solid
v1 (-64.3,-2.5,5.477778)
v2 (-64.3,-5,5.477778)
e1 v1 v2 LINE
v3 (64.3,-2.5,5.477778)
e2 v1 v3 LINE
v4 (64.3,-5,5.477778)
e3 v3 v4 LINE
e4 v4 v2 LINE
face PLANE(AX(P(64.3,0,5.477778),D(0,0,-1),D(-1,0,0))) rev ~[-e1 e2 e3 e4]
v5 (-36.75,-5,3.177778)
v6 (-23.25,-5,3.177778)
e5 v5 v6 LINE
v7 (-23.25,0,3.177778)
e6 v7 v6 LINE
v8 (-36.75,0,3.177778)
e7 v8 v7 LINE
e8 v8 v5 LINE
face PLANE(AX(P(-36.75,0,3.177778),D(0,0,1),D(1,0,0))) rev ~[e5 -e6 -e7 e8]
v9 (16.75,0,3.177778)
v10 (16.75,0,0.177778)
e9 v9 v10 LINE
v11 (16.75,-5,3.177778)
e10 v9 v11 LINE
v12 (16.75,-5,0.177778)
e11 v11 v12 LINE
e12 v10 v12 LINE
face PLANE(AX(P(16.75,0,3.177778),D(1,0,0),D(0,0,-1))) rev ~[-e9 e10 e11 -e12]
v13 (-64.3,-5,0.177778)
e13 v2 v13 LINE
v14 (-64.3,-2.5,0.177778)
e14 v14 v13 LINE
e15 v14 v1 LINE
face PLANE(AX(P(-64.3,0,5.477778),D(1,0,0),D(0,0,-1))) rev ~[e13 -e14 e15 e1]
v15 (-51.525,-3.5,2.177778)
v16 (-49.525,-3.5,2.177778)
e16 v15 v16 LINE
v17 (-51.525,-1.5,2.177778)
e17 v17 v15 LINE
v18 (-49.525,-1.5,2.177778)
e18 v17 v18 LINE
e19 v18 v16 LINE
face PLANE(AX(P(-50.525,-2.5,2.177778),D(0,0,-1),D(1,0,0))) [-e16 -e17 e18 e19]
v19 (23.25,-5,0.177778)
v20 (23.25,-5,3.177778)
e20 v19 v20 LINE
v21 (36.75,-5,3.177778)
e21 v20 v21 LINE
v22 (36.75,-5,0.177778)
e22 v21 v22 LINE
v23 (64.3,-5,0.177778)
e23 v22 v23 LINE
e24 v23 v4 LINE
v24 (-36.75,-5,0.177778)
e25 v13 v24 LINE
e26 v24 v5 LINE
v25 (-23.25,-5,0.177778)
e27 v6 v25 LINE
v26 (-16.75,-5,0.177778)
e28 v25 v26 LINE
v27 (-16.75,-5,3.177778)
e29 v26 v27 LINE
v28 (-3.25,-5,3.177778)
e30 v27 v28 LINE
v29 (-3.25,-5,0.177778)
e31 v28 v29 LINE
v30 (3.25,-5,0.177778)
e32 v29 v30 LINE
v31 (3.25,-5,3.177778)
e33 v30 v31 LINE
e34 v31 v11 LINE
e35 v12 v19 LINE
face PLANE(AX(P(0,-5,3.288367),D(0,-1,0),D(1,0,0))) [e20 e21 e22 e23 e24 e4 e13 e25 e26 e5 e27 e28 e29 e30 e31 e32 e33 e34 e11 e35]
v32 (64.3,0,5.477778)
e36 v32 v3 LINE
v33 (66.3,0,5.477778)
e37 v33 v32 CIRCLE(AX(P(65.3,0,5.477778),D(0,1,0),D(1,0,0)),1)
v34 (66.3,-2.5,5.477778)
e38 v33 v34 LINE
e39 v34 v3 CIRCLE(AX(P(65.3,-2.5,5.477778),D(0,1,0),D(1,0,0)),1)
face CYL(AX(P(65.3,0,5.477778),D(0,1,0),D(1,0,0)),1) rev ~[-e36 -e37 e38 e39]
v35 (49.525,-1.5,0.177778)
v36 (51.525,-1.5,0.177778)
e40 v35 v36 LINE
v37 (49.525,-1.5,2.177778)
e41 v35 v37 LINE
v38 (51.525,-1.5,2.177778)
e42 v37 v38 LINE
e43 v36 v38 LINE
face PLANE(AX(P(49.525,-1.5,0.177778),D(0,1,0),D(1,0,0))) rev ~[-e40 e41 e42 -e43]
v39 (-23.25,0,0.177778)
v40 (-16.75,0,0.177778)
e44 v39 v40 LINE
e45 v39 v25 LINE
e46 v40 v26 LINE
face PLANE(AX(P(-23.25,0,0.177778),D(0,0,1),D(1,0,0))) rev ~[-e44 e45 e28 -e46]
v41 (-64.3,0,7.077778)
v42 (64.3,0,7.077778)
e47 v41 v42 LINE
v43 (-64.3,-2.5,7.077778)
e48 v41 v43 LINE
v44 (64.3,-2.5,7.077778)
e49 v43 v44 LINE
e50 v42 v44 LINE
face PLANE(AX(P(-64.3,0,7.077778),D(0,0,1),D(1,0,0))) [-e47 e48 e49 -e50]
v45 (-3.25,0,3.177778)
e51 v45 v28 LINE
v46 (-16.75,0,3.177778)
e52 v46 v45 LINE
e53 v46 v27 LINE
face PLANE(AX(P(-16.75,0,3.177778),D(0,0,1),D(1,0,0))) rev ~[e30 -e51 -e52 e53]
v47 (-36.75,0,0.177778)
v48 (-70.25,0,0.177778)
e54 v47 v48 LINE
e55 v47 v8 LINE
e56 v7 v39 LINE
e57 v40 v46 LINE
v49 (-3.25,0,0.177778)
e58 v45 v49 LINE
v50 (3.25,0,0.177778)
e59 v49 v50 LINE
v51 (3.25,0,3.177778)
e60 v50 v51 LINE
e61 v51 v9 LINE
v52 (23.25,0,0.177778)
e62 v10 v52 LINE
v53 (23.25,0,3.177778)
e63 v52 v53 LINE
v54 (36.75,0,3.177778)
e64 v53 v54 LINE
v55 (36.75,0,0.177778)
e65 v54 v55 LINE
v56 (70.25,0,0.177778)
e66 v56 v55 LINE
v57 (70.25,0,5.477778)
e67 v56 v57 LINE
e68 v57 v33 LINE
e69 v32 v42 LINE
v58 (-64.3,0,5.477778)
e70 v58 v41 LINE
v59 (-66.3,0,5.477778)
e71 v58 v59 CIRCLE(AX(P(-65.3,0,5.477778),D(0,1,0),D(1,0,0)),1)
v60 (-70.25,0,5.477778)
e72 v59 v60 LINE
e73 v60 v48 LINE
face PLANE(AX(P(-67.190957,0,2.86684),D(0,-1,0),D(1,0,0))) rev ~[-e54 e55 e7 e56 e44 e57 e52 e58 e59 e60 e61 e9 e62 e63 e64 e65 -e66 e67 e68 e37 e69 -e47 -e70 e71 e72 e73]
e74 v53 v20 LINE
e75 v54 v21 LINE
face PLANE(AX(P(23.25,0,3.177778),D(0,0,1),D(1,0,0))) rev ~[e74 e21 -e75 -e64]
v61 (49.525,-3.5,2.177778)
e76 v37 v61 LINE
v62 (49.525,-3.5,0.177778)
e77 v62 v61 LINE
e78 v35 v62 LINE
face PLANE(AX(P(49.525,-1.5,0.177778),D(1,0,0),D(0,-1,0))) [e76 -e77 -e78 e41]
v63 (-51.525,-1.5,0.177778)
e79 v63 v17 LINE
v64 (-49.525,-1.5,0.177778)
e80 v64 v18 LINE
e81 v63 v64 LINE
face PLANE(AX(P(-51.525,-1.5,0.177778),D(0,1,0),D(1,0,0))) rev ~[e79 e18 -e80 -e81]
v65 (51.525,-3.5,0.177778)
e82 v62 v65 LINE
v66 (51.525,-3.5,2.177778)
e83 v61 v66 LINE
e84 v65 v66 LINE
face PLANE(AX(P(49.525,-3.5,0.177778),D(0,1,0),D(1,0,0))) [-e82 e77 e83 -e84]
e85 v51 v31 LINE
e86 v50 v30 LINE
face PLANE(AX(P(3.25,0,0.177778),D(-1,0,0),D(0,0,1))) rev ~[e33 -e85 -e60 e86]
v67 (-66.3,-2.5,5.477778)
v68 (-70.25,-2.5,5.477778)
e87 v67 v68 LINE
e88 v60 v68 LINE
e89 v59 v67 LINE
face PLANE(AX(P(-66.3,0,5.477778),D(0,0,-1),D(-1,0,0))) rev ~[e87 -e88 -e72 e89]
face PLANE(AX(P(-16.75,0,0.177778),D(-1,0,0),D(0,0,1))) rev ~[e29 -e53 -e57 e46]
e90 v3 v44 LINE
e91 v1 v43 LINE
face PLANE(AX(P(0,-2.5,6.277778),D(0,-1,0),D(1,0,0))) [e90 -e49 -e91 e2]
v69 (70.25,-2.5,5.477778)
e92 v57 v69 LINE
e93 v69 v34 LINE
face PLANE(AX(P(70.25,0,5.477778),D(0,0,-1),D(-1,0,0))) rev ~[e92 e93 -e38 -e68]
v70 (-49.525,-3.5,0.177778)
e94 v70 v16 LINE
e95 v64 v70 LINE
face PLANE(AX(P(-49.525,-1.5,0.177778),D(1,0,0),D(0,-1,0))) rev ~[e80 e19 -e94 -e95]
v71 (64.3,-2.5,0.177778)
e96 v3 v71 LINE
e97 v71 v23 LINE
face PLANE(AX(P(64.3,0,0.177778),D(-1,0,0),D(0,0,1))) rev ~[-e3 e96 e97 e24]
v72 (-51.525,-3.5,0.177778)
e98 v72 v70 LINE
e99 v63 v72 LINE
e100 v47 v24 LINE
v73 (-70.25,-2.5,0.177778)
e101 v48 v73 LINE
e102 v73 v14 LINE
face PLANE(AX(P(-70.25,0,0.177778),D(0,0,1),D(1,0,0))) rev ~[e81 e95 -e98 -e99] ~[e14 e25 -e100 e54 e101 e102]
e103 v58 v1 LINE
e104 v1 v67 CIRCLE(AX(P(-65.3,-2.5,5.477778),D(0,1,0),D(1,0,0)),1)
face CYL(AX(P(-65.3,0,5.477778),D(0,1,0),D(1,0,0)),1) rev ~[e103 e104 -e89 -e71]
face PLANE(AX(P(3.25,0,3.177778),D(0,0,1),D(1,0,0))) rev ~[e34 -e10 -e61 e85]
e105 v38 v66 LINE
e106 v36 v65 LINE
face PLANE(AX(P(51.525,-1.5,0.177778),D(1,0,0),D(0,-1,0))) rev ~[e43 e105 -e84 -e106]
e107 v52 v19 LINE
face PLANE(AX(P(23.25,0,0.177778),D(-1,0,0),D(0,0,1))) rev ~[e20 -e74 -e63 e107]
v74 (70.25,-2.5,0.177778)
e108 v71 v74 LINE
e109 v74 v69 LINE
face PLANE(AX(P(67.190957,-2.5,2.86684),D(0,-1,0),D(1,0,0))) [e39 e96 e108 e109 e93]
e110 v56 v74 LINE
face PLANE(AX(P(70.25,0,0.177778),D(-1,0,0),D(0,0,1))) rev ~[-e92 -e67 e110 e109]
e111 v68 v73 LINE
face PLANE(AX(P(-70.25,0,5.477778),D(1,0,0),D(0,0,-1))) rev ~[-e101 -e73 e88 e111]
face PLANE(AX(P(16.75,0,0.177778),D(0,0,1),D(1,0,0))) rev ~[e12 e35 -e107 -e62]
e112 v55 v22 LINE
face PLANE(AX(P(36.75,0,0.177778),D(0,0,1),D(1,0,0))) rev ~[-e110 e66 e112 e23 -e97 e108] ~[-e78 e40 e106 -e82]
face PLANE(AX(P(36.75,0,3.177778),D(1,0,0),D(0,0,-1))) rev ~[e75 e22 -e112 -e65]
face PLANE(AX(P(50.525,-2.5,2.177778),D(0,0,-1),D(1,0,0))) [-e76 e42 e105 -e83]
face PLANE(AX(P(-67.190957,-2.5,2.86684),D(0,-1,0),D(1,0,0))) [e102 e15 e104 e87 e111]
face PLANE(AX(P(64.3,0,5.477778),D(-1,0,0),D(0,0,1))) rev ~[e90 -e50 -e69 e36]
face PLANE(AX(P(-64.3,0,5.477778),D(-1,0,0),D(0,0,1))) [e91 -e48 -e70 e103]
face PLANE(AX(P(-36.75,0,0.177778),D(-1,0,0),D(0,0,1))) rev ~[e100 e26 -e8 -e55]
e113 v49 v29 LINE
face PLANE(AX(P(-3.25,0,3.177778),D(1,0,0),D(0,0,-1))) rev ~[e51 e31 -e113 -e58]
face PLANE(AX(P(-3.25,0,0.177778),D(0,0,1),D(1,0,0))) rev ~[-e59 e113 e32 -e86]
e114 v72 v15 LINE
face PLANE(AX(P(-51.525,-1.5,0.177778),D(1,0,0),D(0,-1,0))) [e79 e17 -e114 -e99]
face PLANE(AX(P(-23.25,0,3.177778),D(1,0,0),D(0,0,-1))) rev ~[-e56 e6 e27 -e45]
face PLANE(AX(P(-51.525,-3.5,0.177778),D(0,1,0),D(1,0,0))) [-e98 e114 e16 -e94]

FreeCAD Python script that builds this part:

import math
import FreeCAD as App
import Part
import Sketcher

V = App.Vector
Q = App.Units.Quantity

doc = App.newDocument("Part")
body = doc.addObject("PartDesign::Body", "Body")

sketch1 = doc.addObject("Sketcher::SketchObject", "Sketch")
body.addObject(sketch1)
sketch1.AttachmentSupport = (doc.XZ_Plane, [""])
sketch1.MapMode = "FlatFace"
sketch1.addGeometry([
    Part.LineSegment(V(64.3, 0.177778, 0), V(64.3, 5.477778, 0)),
    Part.LineSegment(V(64.3, 5.477778, 0), V(-64.3, 5.477778, 0)),
    Part.LineSegment(V(-64.3, 5.477778, 0), V(-64.3, 0.177778, 0)),
    Part.LineSegment(V(-64.3, 0.177778, 0), V(-36.75, 0.177778, 0)),
    Part.LineSegment(V(-36.75, 0.177778, 0), V(-36.75, 3.177778, 0)),
    Part.LineSegment(V(-36.75, 3.177778, 0), V(-23.25, 3.177778, 0)),
    Part.LineSegment(V(-23.25, 3.177778, 0), V(-23.25, 0.177778, 0)),
    Part.LineSegment(V(-23.25, 0.177778, 0), V(-16.75, 0.177778, 0)),
    Part.LineSegment(V(-16.75, 0.177778, 0), V(-16.75, 3.177778, 0)),
    Part.LineSegment(V(-16.75, 3.177778, 0), V(-3.25, 3.177778, 0)),
    Part.LineSegment(V(-3.25, 3.177778, 0), V(-3.25, 0.177778, 0)),
    Part.LineSegment(V(-3.25, 0.177778, 0), V(3.25, 0.177778, 0)),
    Part.LineSegment(V(3.25, 0.177778, 0), V(3.25, 3.177778, 0)),
    Part.LineSegment(V(3.25, 3.177778, 0), V(16.75, 3.177778, 0)),
    Part.LineSegment(V(16.75, 3.177778, 0), V(16.75, 0.177778, 0)),
    Part.LineSegment(V(16.75, 0.177778, 0), V(23.25, 0.177778, 0)),
    Part.LineSegment(V(23.25, 0.177778, 0), V(23.25, 3.177778, 0)),
    Part.LineSegment(V(23.25, 3.177778, 0), V(36.75, 3.177778, 0)),
    Part.LineSegment(V(36.75, 3.177778, 0), V(36.75, 0.177778, 0)),
    Part.LineSegment(V(36.75, 0.177778, 0), V(64.3, 0.177778, 0)),
], False)
sketch1.addConstraint([
    Sketcher.Constraint("Coincident", 0, 2, 1, 1),
    Sketcher.Constraint("Coincident", 1, 2, 2, 1),
    Sketcher.Constraint("Coincident", 2, 2, 3, 1),
    Sketcher.Constraint("Coincident", 3, 2, 4, 1),
    Sketcher.Constraint("Coincident", 4, 2, 5, 1),
    Sketcher.Constraint("Coincident", 5, 2, 6, 1),
    Sketcher.Constraint("Coincident", 6, 2, 7, 1),
    Sketcher.Constraint("Coincident", 7, 2, 8, 1),
    Sketcher.Constraint("Coincident", 8, 2, 9, 1),
    Sketcher.Constraint("Coincident", 9, 2, 10, 1),
    Sketcher.Constraint("Coincident", 10, 2, 11, 1),
    Sketcher.Constraint("Coincident", 11, 2, 12, 1),
    Sketcher.Constraint("Coincident", 12, 2, 13, 1),
    Sketcher.Constraint("Coincident", 13, 2, 14, 1),
    Sketcher.Constraint("Coincident", 14, 2, 15, 1),
    Sketcher.Constraint("Coincident", 15, 2, 16, 1),
    Sketcher.Constraint("Coincident", 16, 2, 17, 1),
    Sketcher.Constraint("Coincident", 17, 2, 18, 1),
    Sketcher.Constraint("Coincident", 18, 2, 19, 1),
    Sketcher.Constraint("Coincident", 19, 2, 0, 1),
    Sketcher.Constraint("Vertical", 0),
    Sketcher.Constraint("Horizontal", 1),
    Sketcher.Constraint("Vertical", 2),
    Sketcher.Constraint("Horizontal", 3),
    Sketcher.Constraint("Vertical", 4),
    Sketcher.Constraint("Horizontal", 5),
    Sketcher.Constraint("Vertical", 6),
    Sketcher.Constraint("Horizontal", 7),
    Sketcher.Constraint("Vertical", 8),
    Sketcher.Constraint("Horizontal", 9),
    Sketcher.Constraint("Vertical", 10),
    Sketcher.Constraint("Horizontal", 11),
    Sketcher.Constraint("Vertical", 12),
    Sketcher.Constraint("Horizontal", 13),
    Sketcher.Constraint("Vertical", 14),
    Sketcher.Constraint("Horizontal", 15),
    Sketcher.Constraint("Vertical", 16),
    Sketcher.Constraint("Horizontal", 17),
    Sketcher.Constraint("Vertical", 18),
    Sketcher.Constraint("Horizontal", 19),
    Sketcher.Constraint("Symmetric", 9, 2, 12, 2, -2),
    Sketcher.Constraint("Symmetric", 7, 2, 14, 2, -2),
    Sketcher.Constraint("Symmetric", 5, 2, 16, 2, -2),
    Sketcher.Constraint("Symmetric", 3, 2, 18, 2, -2),
    Sketcher.Constraint("Horizontal", 3, 2, 6, 2),
    Sketcher.Constraint("Horizontal", 5, 2, 8, 2),
    Sketcher.Constraint("Horizontal", 7, 2, 10, 2),
    Sketcher.Constraint("Equal", 5, 9),
    Sketcher.Constraint("Equal", 7, 11),
    Sketcher.Constraint("Equal", 3, 19),
    Sketcher.Constraint("DistanceY", 4, 1, 4, 2, Q("3 mm")),
    Sketcher.Constraint("DistanceX", 1, 2, 1, 1, Q("128.6 mm")),
    Sketcher.Constraint("DistanceX", 5, 1, 5, 2, Q("13.5 mm")),
    Sketcher.Constraint("DistanceX", 7, 1, 7, 2, Q("6.5 mm")),
    Sketcher.Constraint("DistanceY", 0, 1, 0, 2, Q("5.3 mm")),
    Sketcher.Constraint("DistanceY", -1, 1, 4, 2, Q("3.177778 mm")),
])
pad1 = doc.addObject("PartDesign::Pad", "Pad")
body.addObject(pad1)
pad1.Profile = sketch1
pad1.Length = 5

sketch2 = doc.addObject("Sketcher::SketchObject", "Sketch001")
body.addObject(sketch2)
sketch2.AttachmentSupport = (doc.XZ_Plane, [""])
sketch2.MapMode = "FlatFace"
sketch2.addGeometry([
    Part.LineSegment(V(-64.3, 0.177778, 0), V(-64.3, 5.477778, 0)),
    Part.ArcOfCircle(Part.Circle(V(-65.3, 5.477778, 0), V(0, 0, 1), 1), math.radians(180), math.radians(360)),
    Part.LineSegment(V(-66.3, 5.477778, 0), V(-70.25, 5.477778, 0)),
    Part.LineSegment(V(-70.25, 5.477778, 0), V(-70.25, 0.177778, 0)),
    Part.LineSegment(V(-70.25, 0.177778, 0), V(-64.3, 0.177778, 0)),
    Part.LineSegment(V(-64.3, 7.077778, 0), V(-64.3, 5.477778, 0)),
    Part.LineSegment(V(-64.3, 5.477778, 0), V(64.3, 5.477778, 0)),
    Part.LineSegment(V(64.3, 5.477778, 0), V(64.3, 7.077778, 0)),
    Part.LineSegment(V(64.3, 7.077778, 0), V(-64.3, 7.077778, 0)),
    Part.ArcOfCircle(Part.Circle(V(65.3, 5.477778, 0), V(0, 0, 1), 1), math.radians(180), math.radians(360)),
    Part.LineSegment(V(64.3, 5.477778, 0), V(64.3, 0.177778, 0)),
    Part.LineSegment(V(64.3, 0.177778, 0), V(70.25, 0.177778, 0)),
    Part.LineSegment(V(70.25, 0.177778, 0), V(70.25, 5.477778, 0)),
    Part.LineSegment(V(70.25, 5.477778, 0), V(66.3, 5.477778, 0)),
], False)
sketch2.addConstraint([
    Sketcher.Constraint("Tangent", 0, 2, 1, 2),
    Sketcher.Constraint("Coincident", 1, 1, 2, 1),
    Sketcher.Constraint("Coincident", 2, 2, 3, 1),
    Sketcher.Constraint("Coincident", 3, 2, 4, 1),
    Sketcher.Constraint("Coincident", 4, 2, 0, 1),
    Sketcher.Constraint("Coincident", 5, 2, 6, 1),
    Sketcher.Constraint("Coincident", 6, 2, 7, 1),
    Sketcher.Constraint("Coincident", 7, 2, 8, 1),
    Sketcher.Constraint("Coincident", 8, 2, 5, 1),
    Sketcher.Constraint("Tangent", 9, 1, 10, 1),
    Sketcher.Constraint("Coincident", 10, 2, 11, 1),
    Sketcher.Constraint("Coincident", 11, 2, 12, 1),
    Sketcher.Constraint("Coincident", 12, 2, 13, 1),
    Sketcher.Constraint("Coincident", 13, 2, 9, 2),
    Sketcher.Constraint("Vertical", 0),
    Sketcher.Constraint("Horizontal", 2),
    Sketcher.Constraint("Vertical", 3),
    Sketcher.Constraint("Horizontal", 4),
    Sketcher.Constraint("Vertical", 5),
    Sketcher.Constraint("Horizontal", 6),
    Sketcher.Constraint("Vertical", 7),
    Sketcher.Constraint("Horizontal", 8),
    Sketcher.Constraint("Vertical", 10),
    Sketcher.Constraint("Horizontal", 11),
    Sketcher.Constraint("Vertical", 12),
    Sketcher.Constraint("Horizontal", 13),
    Sketcher.Constraint("Coincident", 5, 2, 0, 2),
    Sketcher.Constraint("Coincident", 9, 1, 6, 2),
    Sketcher.Constraint("Equal", 1, 9),
    Sketcher.Constraint("Symmetric", 4, 2, 10, 2, -2),
    Sketcher.Constraint("Symmetric", 2, 2, 12, 2, -2),
    Sketcher.Constraint("Horizontal", 0, 2, 1, 1),
    Sketcher.Constraint("Radius", 1, Q("1 mm")),
    Sketcher.Constraint("DistanceX", 6, 1, 6, 2, Q("128.6 mm")),
    Sketcher.Constraint("DistanceY", 0, 1, 0, 2, Q("5.3 mm")),
    Sketcher.Constraint("DistanceY", 5, 2, 5, 1, Q("1.6 mm")),
    Sketcher.Constraint("DistanceX", 2, 2, 2, 1, Q("3.95 mm")),
    Sketcher.Constraint("DistanceY", -1, 1, 7, 2, Q("7.077778 mm")),
])
pad2 = doc.addObject("PartDesign::Pad", "Pad001")
body.addObject(pad2)
pad2.Profile = sketch2
pad2.Length = 2.5

sketch3 = doc.addObject("Sketcher::SketchObject", "Sketch002")
body.addObject(sketch3)
sketch3.AttachmentSupport = (doc.XY_Plane, [""])
sketch3.MapMode = "FlatFace"
sketch3.AttachmentOffset = App.Placement(V(0, 0, 0.177778), App.Rotation())
sketch3.addGeometry([
    Part.LineSegment(V(49.525, -3.5, 0), V(49.525, -1.5, 0)),
    Part.LineSegment(V(49.525, -1.5, 0), V(51.525, -1.5, 0)),
    Part.LineSegment(V(51.525, -1.5, 0), V(51.525, -3.5, 0)),
    Part.LineSegment(V(51.525, -3.5, 0), V(49.525, -3.5, 0)),
], False)
sketch3.addConstraint([
    Sketcher.Constraint("Coincident", 0, 2, 1, 1),
    Sketcher.Constraint("Coincident", 1, 2, 2, 1),
    Sketcher.Constraint("Coincident", 2, 2, 3, 1),
    Sketcher.Constraint("Coincident", 3, 2, 0, 1),
    Sketcher.Constraint("Vertical", 0),
    Sketcher.Constraint("Horizontal", 1),
    Sketcher.Constraint("Vertical", 2),
    Sketcher.Constraint("Horizontal", 3),
    Sketcher.Constraint("Equal", 3, 0),
    Sketcher.Constraint("DistanceX", 1, 1, 1, 2, Q("2 mm")),
    Sketcher.Constraint("DistanceY", 0, 2, -1, 1, Q("1.5 mm")),
    Sketcher.Constraint("DistanceX", -1, 1, 0, 2, Q("49.525 mm")),
])
pocket1 = doc.addObject("PartDesign::Pocket", "Pocket")
body.addObject(pocket1)
pocket1.Profile = sketch3
pocket1.Length = 2
pocket1.Reversed = True

sketch4 = doc.addObject("Sketcher::SketchObject", "Sketch003")
body.addObject(sketch4)
sketch4.AttachmentSupport = (doc.XY_Plane, [""])
sketch4.MapMode = "FlatFace"
sketch4.AttachmentOffset = App.Placement(V(0, 0, 0.177778), App.Rotation())
sketch4.addGeometry([
    Part.LineSegment(V(-51.525, -3.5, 0), V(-51.525, -1.5, 0)),
    Part.LineSegment(V(-51.525, -1.5, 0), V(-49.525, -1.5, 0)),
    Part.LineSegment(V(-49.525, -1.5, 0), V(-49.525, -3.5, 0)),
    Part.LineSegment(V(-49.525, -3.5, 0), V(-51.525, -3.5, 0)),
], False)
sketch4.addConstraint([
    Sketcher.Constraint("Coincident", 0, 2, 1, 1),
    Sketcher.Constraint("Coincident", 1, 2, 2, 1),
    Sketcher.Constraint("Coincident", 2, 2, 3, 1),
    Sketcher.Constraint("Coincident", 3, 2, 0, 1),
    Sketcher.Constraint("Vertical", 0),
    Sketcher.Constraint("Horizontal", 1),
    Sketcher.Constraint("Vertical", 2),
    Sketcher.Constraint("Horizontal", 3),
    Sketcher.Constraint("Equal", 3, 0),
    Sketcher.Constraint("DistanceX", 1, 1, 1, 2, Q("2 mm")),
    Sketcher.Constraint("DistanceY", 0, 2, -1, 1, Q("1.5 mm")),
    Sketcher.Constraint("DistanceX", 0, 2, -1, 1, Q("51.525 mm")),
])
pocket2 = doc.addObject("PartDesign::Pocket", "Pocket001")
body.addObject(pocket2)
pocket2.Profile = sketch4
pocket2.Length = 2
pocket2.Reversed = True

doc.recompute()
